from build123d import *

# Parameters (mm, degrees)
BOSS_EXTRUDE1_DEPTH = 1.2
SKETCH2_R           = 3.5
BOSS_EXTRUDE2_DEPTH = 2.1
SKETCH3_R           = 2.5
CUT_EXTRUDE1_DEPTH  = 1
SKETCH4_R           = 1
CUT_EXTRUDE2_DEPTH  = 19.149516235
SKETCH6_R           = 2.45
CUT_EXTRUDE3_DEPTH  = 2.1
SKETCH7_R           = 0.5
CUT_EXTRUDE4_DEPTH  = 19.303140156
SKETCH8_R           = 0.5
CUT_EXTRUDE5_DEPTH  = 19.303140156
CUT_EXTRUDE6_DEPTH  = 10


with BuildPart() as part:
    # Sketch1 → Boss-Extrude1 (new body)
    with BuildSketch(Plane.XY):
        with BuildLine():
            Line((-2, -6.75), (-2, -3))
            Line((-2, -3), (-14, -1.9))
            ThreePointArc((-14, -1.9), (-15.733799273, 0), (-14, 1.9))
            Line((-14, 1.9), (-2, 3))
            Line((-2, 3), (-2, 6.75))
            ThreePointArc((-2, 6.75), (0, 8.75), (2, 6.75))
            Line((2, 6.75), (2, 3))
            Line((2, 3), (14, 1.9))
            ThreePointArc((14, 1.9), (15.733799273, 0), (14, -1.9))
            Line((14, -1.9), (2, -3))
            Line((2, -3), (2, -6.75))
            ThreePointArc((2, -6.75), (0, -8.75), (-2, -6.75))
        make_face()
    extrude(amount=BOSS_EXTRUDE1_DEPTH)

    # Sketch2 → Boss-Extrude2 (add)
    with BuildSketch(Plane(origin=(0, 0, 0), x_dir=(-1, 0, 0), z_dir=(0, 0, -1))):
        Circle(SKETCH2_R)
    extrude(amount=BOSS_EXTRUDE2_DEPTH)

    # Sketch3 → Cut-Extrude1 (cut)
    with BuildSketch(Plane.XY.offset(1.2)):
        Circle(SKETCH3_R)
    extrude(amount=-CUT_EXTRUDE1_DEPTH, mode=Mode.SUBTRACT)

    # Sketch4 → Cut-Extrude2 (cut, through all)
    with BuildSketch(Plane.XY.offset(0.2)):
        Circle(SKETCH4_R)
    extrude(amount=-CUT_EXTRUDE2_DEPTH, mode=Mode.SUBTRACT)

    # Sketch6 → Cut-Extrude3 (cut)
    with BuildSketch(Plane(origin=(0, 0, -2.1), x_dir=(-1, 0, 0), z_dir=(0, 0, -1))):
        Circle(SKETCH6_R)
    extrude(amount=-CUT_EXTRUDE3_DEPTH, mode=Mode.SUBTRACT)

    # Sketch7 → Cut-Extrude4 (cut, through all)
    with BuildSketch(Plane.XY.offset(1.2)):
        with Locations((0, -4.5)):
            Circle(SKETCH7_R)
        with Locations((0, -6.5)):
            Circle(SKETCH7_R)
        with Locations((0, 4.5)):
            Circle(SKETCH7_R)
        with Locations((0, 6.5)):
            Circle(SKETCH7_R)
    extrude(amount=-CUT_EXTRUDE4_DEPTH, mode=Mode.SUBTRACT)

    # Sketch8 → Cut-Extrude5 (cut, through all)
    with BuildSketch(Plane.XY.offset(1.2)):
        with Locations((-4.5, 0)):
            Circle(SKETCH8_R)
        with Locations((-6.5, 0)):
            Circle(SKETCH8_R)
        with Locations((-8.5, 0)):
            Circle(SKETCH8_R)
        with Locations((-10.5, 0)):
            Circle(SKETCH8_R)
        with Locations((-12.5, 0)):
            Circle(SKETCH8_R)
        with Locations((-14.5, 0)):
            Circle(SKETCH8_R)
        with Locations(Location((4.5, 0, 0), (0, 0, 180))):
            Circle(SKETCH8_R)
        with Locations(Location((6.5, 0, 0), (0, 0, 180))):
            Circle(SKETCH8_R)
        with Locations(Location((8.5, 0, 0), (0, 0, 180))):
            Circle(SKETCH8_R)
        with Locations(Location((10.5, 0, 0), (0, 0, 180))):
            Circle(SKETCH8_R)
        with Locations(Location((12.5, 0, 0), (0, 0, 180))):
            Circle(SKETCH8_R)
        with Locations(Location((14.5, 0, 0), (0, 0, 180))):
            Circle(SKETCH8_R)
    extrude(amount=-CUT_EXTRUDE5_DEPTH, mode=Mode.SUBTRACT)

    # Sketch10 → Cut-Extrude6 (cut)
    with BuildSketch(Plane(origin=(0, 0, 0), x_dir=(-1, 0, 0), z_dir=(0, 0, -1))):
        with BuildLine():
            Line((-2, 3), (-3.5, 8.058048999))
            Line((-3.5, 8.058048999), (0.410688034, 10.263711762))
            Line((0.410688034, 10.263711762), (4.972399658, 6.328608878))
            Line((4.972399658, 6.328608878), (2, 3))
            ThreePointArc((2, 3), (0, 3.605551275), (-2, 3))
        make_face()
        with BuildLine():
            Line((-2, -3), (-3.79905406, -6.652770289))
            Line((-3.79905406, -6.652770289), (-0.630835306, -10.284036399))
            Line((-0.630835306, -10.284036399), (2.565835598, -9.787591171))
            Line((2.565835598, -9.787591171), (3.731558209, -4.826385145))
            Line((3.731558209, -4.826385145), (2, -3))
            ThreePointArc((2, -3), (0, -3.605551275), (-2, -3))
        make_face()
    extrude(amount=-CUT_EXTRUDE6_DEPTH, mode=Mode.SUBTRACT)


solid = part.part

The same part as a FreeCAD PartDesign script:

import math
import FreeCAD as App
import Part
import Sketcher
Q = App.Units.Quantity

doc = App.newDocument("Part")
body = doc.addObject("PartDesign::Body", "Body")

sketch1 = doc.addObject("Sketcher::SketchObject", "Sketch")
body.addObject(sketch1)
sketch1.AttachmentSupport = (doc.XY_Plane, [""])
sketch1.MapMode = "FlatFace"
sketch1.addGeometry([
    Part.LineSegment(App.Vector(-2, -3, 0), App.Vector(-2, -6.8, 0)),
    Part.ArcOfCircle(Part.Circle(App.Vector(0, -6.8, 0), App.Vector(0, 0, 1), 2), math.radians(180), math.radians(360)),
    Part.LineSegment(App.Vector(2, -6.8, 0), App.Vector(2, -3, 0)),
    Part.LineSegment(App.Vector(2, -3, 0), App.Vector(14, -1.9, 0)),
    Part.ArcOfCircle(Part.Circle(App.Vector(13.8, 0, 0), App.Vector(0, 0, 1), 1.9), math.radians(-85), math.radians(85)),
    Part.LineSegment(App.Vector(14, 1.9, 0), App.Vector(2, 3, 0)),
    Part.LineSegment(App.Vector(2, 3, 0), App.Vector(2, 6.8, 0)),
    Part.ArcOfCircle(Part.Circle(App.Vector(0, 6.8, 0), App.Vector(0, 0, 1), 2), math.radians(0), math.radians(180)),
    Part.LineSegment(App.Vector(-2, 6.8, 0), App.Vector(-2, 3, 0)),
    Part.LineSegment(App.Vector(-2, 3, 0), App.Vector(-14, 1.9, 0)),
    Part.ArcOfCircle(Part.Circle(App.Vector(-13.8, 0, 0), App.Vector(0, 0, 1), 1.9), math.radians(95), math.radians(265)),
    Part.LineSegment(App.Vector(-14, -1.9, 0), App.Vector(-2, -3, 0)),
], False)
sketch1.addConstraint([
    Sketcher.Constraint("Tangent", 0, 2, 1, 1),
    Sketcher.Constraint("Tangent", 1, 2, 2, 1),
    Sketcher.Constraint("Coincident", 2, 2, 3, 1),
    Sketcher.Constraint("Tangent", 3, 2, 4, 1),
    Sketcher.Constraint("Tangent", 4, 2, 5, 1),
    Sketcher.Constraint("Coincident", 5, 2, 6, 1),
    Sketcher.Constraint("Tangent", 6, 2, 7, 1),
    Sketcher.Constraint("Tangent", 7, 2, 8, 1),
    Sketcher.Constraint("Coincident", 8, 2, 9, 1),
    Sketcher.Constraint("Tangent", 9, 2, 10, 1),
    Sketcher.Constraint("Tangent", 10, 2, 11, 1),
    Sketcher.Constraint("Coincident", 11, 2, 0, 1),
    Sketcher.Constraint("Vertical", 0),
    Sketcher.Constraint("Vertical", 2),
    Sketcher.Constraint("Vertical", 6),
    Sketcher.Constraint("Vertical", 8),
    Sketcher.Constraint("Equal", 1, 7),
    Sketcher.Constraint("Equal", 4, 10),
    Sketcher.Constraint("Symmetric", 1, 3, 7, 3, -1, 1),
    Sketcher.Constraint("Symmetric", 4, 3, 10, 3, -1, 1),
    Sketcher.Constraint("Symmetric", 5, 2, 8, 2, -2),
    Sketcher.Constraint("Symmetric", 3, 2, 10, 2, -2),
    Sketcher.Constraint("Parallel", 3, 9),
    Sketcher.Constraint("Radius", 1, Q("2 mm")),
    Sketcher.Constraint("DistanceY", 2, 2, -1, 1, Q("3 mm")),
    Sketcher.Constraint("DistanceX", -1, 1, 3, 2, Q("14 mm")),
    Sketcher.Constraint("DistanceY", 0, 2, 0, 1, Q("3.75 mm")),
    Sketcher.Constraint("DistanceY", 3, 2, -1, 1, Q("1.9 mm")),
])
pad1 = doc.addObject("PartDesign::Pad", "Pad")
body.addObject(pad1)
pad1.Profile = sketch1
pad1.Length = 1.2

sketch2 = doc.addObject("Sketcher::SketchObject", "Sketch001")
body.addObject(sketch2)
sketch2.AttachmentSupport = (doc.XY_Plane, [""])
sketch2.MapMode = "FlatFace"
sketch2.addGeometry(Part.Circle(App.Vector(0, 0, 0), App.Vector(0, 0, 1), 3.5), False)
sketch2.addConstraint([
    Sketcher.Constraint("Coincident", 0, 3, -1, 1),
    Sketcher.Constraint("Diameter", 0, Q("7 mm")),
])
pad2 = doc.addObject("PartDesign::Pad", "Pad001")
body.addObject(pad2)
pad2.Profile = sketch2
pad2.Length = 2.1
pad2.Reversed = True

sketch3 = doc.addObject("Sketcher::SketchObject", "Sketch002")
body.addObject(sketch3)
sketch3.AttachmentSupport = (doc.XY_Plane, [""])
sketch3.MapMode = "FlatFace"
sketch3.AttachmentOffset = App.Placement(App.Vector(0, 0, 1.2), App.Rotation())
sketch3.addGeometry(Part.Circle(App.Vector(0, 0, 0), App.Vector(0, 0, 1), 2.5), False)
sketch3.addConstraint([
    Sketcher.Constraint("Coincident", 0, 3, -1, 1),
    Sketcher.Constraint("Diameter", 0, Q("5 mm")),
])
pocket1 = doc.addObject("PartDesign::Pocket", "Pocket")
body.addObject(pocket1)
pocket1.Profile = sketch3
pocket1.Length = 1

sketch4 = doc.addObject("Sketcher::SketchObject", "Sketch003")
body.addObject(sketch4)
sketch4.AttachmentSupport = (doc.XY_Plane, [""])
sketch4.MapMode = "FlatFace"
sketch4.AttachmentOffset = App.Placement(App.Vector(0, 0, 0.2), App.Rotation())
sketch4.addGeometry(Part.Circle(App.Vector(0, 0, 0), App.Vector(0, 0, 1), 1), False)
sketch4.addConstraint([
    Sketcher.Constraint("Coincident", 0, 3, -1, 1),
    Sketcher.Constraint("Diameter", 0, Q("2 mm")),
])
pocket2 = doc.addObject("PartDesign::Pocket", "Pocket001")
body.addObject(pocket2)
pocket2.Profile = sketch4
pocket2.Type = "ThroughAll"

sketch5 = doc.addObject("Sketcher::SketchObject", "Sketch004")
body.addObject(sketch5)
sketch5.AttachmentSupport = (doc.XY_Plane, [""])
sketch5.MapMode = "FlatFace"
sketch5.AttachmentOffset = App.Placement(App.Vector(0, 0, -2.1), App.Rotation())
sketch5.addGeometry(Part.Circle(App.Vector(0, 0, 0), App.Vector(0, 0, 1), 2.5), False)
sketch5.addConstraint([
    Sketcher.Constraint("Coincident", 0, 3, -1, 1),
    Sketcher.Constraint("Diameter", 0, Q("4.9 mm")),
])
pocket3 = doc.addObject("PartDesign::Pocket", "Pocket002")
body.addObject(pocket3)
pocket3.Profile = sketch5
pocket3.Length = 2.1
pocket3.Reversed = True

sketch6 = doc.addObject("Sketcher::SketchObject", "Sketch005")
body.addObject(sketch6)
sketch6.AttachmentSupport = (doc.XY_Plane, [""])
sketch6.MapMode = "FlatFace"
sketch6.AttachmentOffset = App.Placement(App.Vector(0, 0, 1.2), App.Rotation())
sketch6.addGeometry([
    Part.Circle(App.Vector(0, -4.5, 0), App.Vector(0, 0, 1), 0.5),
    Part.Circle(App.Vector(0, -6.5, 0), App.Vector(0, 0, 1), 0.5),
    Part.Circle(App.Vector(0, 4.5, 0), App.Vector(0, 0, 1), 0.5),
    Part.Circle(App.Vector(0, 6.5, 0), App.Vector(0, 0, 1), 0.5),
], False)
sketch6.addConstraint([
    Sketcher.Constraint("Equal", 0, 1),
    Sketcher.Constraint("Equal", 1, 2),
    Sketcher.Constraint("Equal", 2, 3),
    Sketcher.Constraint("Symmetric", 0, 3, 2, 3, -1, 1),
    Sketcher.Constraint("Symmetric", 1, 3, 3, 3, -1, 1),
    Sketcher.Constraint("PointOnObject", 0, 3, -2),
    Sketcher.Constraint("PointOnObject", 1, 3, -2),
    Sketcher.Constraint("Diameter", 0, Q("1 mm")),
    Sketcher.Constraint("DistanceY", 1, 3, 0, 3, Q("2 mm")),
    Sketcher.Constraint("DistanceY", 0, 3, 2, 3, Q("9 mm")),
])
pocket4 = doc.addObject("PartDesign::Pocket", "Pocket003")
body.addObject(pocket4)
pocket4.Profile = sketch6
pocket4.Type = "ThroughAll"

sketch7 = doc.addObject("Sketcher::SketchObject", "Sketch006")
body.addObject(sketch7)
sketch7.AttachmentSupport = (doc.XY_Plane, [""])
sketch7.MapMode = "FlatFace"
sketch7.AttachmentOffset = App.Placement(App.Vector(0, 0, 1.2), App.Rotation())
sketch7.addGeometry([
    Part.Circle(App.Vector(-4.5, 0, 0), App.Vector(0, 0, 1), 0.5),
    Part.Circle(App.Vector(-6.5, 0, 0), App.Vector(0, 0, 1), 0.5),
    Part.Circle(App.Vector(-8.5, 0, 0), App.Vector(0, 0, 1), 0.5),
    Part.Circle(App.Vector(-10.5, 0, 0), App.Vector(0, 0, 1), 0.5),
    Part.Circle(App.Vector(-12.5, 0, 0), App.Vector(0, 0, 1), 0.5),
    Part.Circle(App.Vector(-14.5, 0, 0), App.Vector(0, 0, 1), 0.5),
    Part.Circle(App.Vector(4.5, 0, 0), App.Vector(0, 0, 1), 0.5),
    Part.Circle(App.Vector(6.5, 0, 0), App.Vector(0, 0, 1), 0.5),
    Part.Circle(App.Vector(8.5, 0, 0), App.Vector(0, 0, 1), 0.5),
    Part.Circle(App.Vector(10.5, 0, 0), App.Vector(0, 0, 1), 0.5),
    Part.Circle(App.Vector(12.5, 0, 0), App.Vector(0, 0, 1), 0.5),
    Part.Circle(App.Vector(14.5, 0, 0), App.Vector(0, 0, 1), 0.5),
], False)
sketch7.addConstraint([
    Sketcher.Constraint("Equal", 0, 1),
    Sketcher.Constraint("Equal", 1, 2),
    Sketcher.Constraint("Equal", 2, 3),
    Sketcher.Constraint("Equal", 3, 4),
    Sketcher.Constraint("Equal", 4, 5),
    Sketcher.Constraint("Equal", 5, 6),
    Sketcher.Constraint("Equal", 6, 7),
    Sketcher.Constraint("Equal", 7, 8),
    Sketcher.Constraint("Equal", 8, 9),
    Sketcher.Constraint("Equal", 9, 10),
    Sketcher.Constraint("Equal", 10, 11),
    Sketcher.Constraint("Symmetric", 0, 3, 6, 3, -1, 1),
    Sketcher.Constraint("Symmetric", 1, 3, 7, 3, -1, 1),
    Sketcher.Constraint("Symmetric", 2, 3, 8, 3, -1, 1),
    Sketcher.Constraint("Symmetric", 3, 3, 9, 3, -1, 1),
    Sketcher.Constraint("Symmetric", 4, 3, 10, 3, -1, 1),
    Sketcher.Constraint("Symmetric", 5, 3, 11, 3, -1, 1),
    Sketcher.Constraint("PointOnObject", 0, 3, -1),
    Sketcher.Constraint("PointOnObject", 1, 3, -1),
    Sketcher.Constraint("PointOnObject", 2, 3, -1),
    Sketcher.Constraint("PointOnObject", 3, 3, -1),
    Sketcher.Constraint("PointOnObject", 4, 3, -1),
    Sketcher.Constraint("PointOnObject", 5, 3, -1),
    Sketcher.Constraint("Diameter", 0, Q("1 mm")),
    Sketcher.Constraint("DistanceX", 1, 3, 0, 3, Q("2 mm")),
    Sketcher.Constraint("DistanceX", 2, 3, 1, 3, Q("2 mm")),
    Sketcher.Constraint("DistanceX", 3, 3, 2, 3, Q("2 mm")),
    Sketcher.Constraint("DistanceX", 4, 3, 3, 3, Q("2 mm")),
    Sketcher.Constraint("DistanceX", 5, 3, 4, 3, Q("2 mm")),
    Sketcher.Constraint("DistanceX", 0, 3, 6, 3, Q("9 mm")),
])
pocket5 = doc.addObject("PartDesign::Pocket", "Pocket004")
body.addObject(pocket5)
pocket5.Profile = sketch7
pocket5.Type = "ThroughAll"

sketch8 = doc.addObject("Sketcher::SketchObject", "Sketch007")
body.addObject(sketch8)
sketch8.AttachmentSupport = (doc.XY_Plane, [""])
sketch8.MapMode = "FlatFace"
sketch8.addGeometry([
    Part.LineSegment(App.Vector(3.5, 8.1, 0), App.Vector(2, 3, 0)),
    Part.ArcOfCircle(Part.Circle(App.Vector(0, 0, 0), App.Vector(0, 0, 1), 3.6), math.radians(56), math.radians(124)),
    Part.LineSegment(App.Vector(-2, 3, 0), App.Vector(-5, 6.3, 0)),
    Part.LineSegment(App.Vector(-5, 6.3, 0), App.Vector(-0.4, 10.3, 0)),
    Part.LineSegment(App.Vector(-0.4, 10.3, 0), App.Vector(3.5, 8.1, 0)),
    Part.LineSegment(App.Vector(2, -3, 0), App.Vector(3.8, -6.7, 0)),
    Part.LineSegment(App.Vector(3.8, -6.7, 0), App.Vector(0.6, -10.3, 0)),
    Part.LineSegment(App.Vector(0.6, -10.3, 0), App.Vector(-2.6, -9.8, 0)),
    Part.LineSegment(App.Vector(-2.6, -9.8, 0), App.Vector(-3.7, -4.8, 0)),
    Part.LineSegment(App.Vector(-3.7, -4.8, 0), App.Vector(-2, -3, 0)),
    Part.ArcOfCircle(Part.Circle(App.Vector(0, 0, 0), App.Vector(0, 0, 1), 3.6), math.radians(-124), math.radians(-56)),
], False)
sketch8.addConstraint([
    Sketcher.Constraint("Coincident", 0, 2, 1, 1),
    Sketcher.Constraint("Coincident", 1, 2, 2, 1),
    Sketcher.Constraint("Coincident", 2, 2, 3, 1),
    Sketcher.Constraint("Coincident", 3, 2, 4, 1),
    Sketcher.Constraint("Coincident", 4, 2, 0, 1),
    Sketcher.Constraint("Coincident", 5, 2, 6, 1),
    Sketcher.Constraint("Coincident", 6, 2, 7, 1),
    Sketcher.Constraint("Coincident", 7, 2, 8, 1),
    Sketcher.Constraint("Coincident", 8, 2, 9, 1),
    Sketcher.Constraint("Coincident", 9, 2, 10, 1),
    Sketcher.Constraint("Coincident", 10, 2, 5, 1),
    Sketcher.Constraint("Coincident", 1, 3, -1, 1),
    Sketcher.Constraint("Coincident", 10, 3, -1, 1),
    Sketcher.Constraint("Equal", 1, 10),
    Sketcher.Constraint("Horizontal", 0, 2, 1, 2),
    Sketcher.Constraint("Horizontal", 9, 2, 10, 2),
    Sketcher.Constraint("Vertical", 1, 2, 9, 2),
    Sketcher.Constraint("DistanceX", -1, 1, 0, 2, Q("2 mm")),
    Sketcher.Constraint("DistanceY", -1, 1, 0, 2, Q("3 mm")),
    Sketcher.Constraint("DistanceX", -1, 1, 4, 2, Q("3.5 mm")),
    Sketcher.Constraint("Distance", 2, Q("4.4626 mm")),
    Sketcher.Constraint("DistanceX", 2, 2, -1, 1, Q("4.9724 mm")),
    Sketcher.Constraint("Distance", 0, Q("5.27578 mm")),
    Sketcher.Constraint("Distance", 3, Q("6.024471 mm")),
    Sketcher.Constraint("Distance", 5, Q("4.071772 mm")),
    Sketcher.Constraint("Distance", 7, Q("3.23499 mm")),
    Sketcher.Constraint("Distance", 8, Q("5.09632 mm")),
    Sketcher.Constraint("Distance", 9, Q("2.516739 mm")),
    Sketcher.Constraint("DistanceX", 3, 2, -1, 1, Q("0.410688 mm")),
    Sketcher.Constraint("DistanceY", 5, 2, -1, 1, Q("6.65277 mm")),
    Sketcher.Constraint("DistanceY", 7, 2, -1, 1, Q("9.787591 mm")),
    Sketcher.Constraint("DistanceX", 8, 2, -1, 1, Q("3.731558 mm")),
    Sketcher.Constraint("DistanceX", 6, 2, 5, 2, Q("3.168219 mm")),
])
pocket6 = doc.addObject("PartDesign::Pocket", "Pocket005")
body.addObject(pocket6)
pocket6.Profile = sketch8
pocket6.Length = 10
pocket6.Reversed = True

doc.recompute()
